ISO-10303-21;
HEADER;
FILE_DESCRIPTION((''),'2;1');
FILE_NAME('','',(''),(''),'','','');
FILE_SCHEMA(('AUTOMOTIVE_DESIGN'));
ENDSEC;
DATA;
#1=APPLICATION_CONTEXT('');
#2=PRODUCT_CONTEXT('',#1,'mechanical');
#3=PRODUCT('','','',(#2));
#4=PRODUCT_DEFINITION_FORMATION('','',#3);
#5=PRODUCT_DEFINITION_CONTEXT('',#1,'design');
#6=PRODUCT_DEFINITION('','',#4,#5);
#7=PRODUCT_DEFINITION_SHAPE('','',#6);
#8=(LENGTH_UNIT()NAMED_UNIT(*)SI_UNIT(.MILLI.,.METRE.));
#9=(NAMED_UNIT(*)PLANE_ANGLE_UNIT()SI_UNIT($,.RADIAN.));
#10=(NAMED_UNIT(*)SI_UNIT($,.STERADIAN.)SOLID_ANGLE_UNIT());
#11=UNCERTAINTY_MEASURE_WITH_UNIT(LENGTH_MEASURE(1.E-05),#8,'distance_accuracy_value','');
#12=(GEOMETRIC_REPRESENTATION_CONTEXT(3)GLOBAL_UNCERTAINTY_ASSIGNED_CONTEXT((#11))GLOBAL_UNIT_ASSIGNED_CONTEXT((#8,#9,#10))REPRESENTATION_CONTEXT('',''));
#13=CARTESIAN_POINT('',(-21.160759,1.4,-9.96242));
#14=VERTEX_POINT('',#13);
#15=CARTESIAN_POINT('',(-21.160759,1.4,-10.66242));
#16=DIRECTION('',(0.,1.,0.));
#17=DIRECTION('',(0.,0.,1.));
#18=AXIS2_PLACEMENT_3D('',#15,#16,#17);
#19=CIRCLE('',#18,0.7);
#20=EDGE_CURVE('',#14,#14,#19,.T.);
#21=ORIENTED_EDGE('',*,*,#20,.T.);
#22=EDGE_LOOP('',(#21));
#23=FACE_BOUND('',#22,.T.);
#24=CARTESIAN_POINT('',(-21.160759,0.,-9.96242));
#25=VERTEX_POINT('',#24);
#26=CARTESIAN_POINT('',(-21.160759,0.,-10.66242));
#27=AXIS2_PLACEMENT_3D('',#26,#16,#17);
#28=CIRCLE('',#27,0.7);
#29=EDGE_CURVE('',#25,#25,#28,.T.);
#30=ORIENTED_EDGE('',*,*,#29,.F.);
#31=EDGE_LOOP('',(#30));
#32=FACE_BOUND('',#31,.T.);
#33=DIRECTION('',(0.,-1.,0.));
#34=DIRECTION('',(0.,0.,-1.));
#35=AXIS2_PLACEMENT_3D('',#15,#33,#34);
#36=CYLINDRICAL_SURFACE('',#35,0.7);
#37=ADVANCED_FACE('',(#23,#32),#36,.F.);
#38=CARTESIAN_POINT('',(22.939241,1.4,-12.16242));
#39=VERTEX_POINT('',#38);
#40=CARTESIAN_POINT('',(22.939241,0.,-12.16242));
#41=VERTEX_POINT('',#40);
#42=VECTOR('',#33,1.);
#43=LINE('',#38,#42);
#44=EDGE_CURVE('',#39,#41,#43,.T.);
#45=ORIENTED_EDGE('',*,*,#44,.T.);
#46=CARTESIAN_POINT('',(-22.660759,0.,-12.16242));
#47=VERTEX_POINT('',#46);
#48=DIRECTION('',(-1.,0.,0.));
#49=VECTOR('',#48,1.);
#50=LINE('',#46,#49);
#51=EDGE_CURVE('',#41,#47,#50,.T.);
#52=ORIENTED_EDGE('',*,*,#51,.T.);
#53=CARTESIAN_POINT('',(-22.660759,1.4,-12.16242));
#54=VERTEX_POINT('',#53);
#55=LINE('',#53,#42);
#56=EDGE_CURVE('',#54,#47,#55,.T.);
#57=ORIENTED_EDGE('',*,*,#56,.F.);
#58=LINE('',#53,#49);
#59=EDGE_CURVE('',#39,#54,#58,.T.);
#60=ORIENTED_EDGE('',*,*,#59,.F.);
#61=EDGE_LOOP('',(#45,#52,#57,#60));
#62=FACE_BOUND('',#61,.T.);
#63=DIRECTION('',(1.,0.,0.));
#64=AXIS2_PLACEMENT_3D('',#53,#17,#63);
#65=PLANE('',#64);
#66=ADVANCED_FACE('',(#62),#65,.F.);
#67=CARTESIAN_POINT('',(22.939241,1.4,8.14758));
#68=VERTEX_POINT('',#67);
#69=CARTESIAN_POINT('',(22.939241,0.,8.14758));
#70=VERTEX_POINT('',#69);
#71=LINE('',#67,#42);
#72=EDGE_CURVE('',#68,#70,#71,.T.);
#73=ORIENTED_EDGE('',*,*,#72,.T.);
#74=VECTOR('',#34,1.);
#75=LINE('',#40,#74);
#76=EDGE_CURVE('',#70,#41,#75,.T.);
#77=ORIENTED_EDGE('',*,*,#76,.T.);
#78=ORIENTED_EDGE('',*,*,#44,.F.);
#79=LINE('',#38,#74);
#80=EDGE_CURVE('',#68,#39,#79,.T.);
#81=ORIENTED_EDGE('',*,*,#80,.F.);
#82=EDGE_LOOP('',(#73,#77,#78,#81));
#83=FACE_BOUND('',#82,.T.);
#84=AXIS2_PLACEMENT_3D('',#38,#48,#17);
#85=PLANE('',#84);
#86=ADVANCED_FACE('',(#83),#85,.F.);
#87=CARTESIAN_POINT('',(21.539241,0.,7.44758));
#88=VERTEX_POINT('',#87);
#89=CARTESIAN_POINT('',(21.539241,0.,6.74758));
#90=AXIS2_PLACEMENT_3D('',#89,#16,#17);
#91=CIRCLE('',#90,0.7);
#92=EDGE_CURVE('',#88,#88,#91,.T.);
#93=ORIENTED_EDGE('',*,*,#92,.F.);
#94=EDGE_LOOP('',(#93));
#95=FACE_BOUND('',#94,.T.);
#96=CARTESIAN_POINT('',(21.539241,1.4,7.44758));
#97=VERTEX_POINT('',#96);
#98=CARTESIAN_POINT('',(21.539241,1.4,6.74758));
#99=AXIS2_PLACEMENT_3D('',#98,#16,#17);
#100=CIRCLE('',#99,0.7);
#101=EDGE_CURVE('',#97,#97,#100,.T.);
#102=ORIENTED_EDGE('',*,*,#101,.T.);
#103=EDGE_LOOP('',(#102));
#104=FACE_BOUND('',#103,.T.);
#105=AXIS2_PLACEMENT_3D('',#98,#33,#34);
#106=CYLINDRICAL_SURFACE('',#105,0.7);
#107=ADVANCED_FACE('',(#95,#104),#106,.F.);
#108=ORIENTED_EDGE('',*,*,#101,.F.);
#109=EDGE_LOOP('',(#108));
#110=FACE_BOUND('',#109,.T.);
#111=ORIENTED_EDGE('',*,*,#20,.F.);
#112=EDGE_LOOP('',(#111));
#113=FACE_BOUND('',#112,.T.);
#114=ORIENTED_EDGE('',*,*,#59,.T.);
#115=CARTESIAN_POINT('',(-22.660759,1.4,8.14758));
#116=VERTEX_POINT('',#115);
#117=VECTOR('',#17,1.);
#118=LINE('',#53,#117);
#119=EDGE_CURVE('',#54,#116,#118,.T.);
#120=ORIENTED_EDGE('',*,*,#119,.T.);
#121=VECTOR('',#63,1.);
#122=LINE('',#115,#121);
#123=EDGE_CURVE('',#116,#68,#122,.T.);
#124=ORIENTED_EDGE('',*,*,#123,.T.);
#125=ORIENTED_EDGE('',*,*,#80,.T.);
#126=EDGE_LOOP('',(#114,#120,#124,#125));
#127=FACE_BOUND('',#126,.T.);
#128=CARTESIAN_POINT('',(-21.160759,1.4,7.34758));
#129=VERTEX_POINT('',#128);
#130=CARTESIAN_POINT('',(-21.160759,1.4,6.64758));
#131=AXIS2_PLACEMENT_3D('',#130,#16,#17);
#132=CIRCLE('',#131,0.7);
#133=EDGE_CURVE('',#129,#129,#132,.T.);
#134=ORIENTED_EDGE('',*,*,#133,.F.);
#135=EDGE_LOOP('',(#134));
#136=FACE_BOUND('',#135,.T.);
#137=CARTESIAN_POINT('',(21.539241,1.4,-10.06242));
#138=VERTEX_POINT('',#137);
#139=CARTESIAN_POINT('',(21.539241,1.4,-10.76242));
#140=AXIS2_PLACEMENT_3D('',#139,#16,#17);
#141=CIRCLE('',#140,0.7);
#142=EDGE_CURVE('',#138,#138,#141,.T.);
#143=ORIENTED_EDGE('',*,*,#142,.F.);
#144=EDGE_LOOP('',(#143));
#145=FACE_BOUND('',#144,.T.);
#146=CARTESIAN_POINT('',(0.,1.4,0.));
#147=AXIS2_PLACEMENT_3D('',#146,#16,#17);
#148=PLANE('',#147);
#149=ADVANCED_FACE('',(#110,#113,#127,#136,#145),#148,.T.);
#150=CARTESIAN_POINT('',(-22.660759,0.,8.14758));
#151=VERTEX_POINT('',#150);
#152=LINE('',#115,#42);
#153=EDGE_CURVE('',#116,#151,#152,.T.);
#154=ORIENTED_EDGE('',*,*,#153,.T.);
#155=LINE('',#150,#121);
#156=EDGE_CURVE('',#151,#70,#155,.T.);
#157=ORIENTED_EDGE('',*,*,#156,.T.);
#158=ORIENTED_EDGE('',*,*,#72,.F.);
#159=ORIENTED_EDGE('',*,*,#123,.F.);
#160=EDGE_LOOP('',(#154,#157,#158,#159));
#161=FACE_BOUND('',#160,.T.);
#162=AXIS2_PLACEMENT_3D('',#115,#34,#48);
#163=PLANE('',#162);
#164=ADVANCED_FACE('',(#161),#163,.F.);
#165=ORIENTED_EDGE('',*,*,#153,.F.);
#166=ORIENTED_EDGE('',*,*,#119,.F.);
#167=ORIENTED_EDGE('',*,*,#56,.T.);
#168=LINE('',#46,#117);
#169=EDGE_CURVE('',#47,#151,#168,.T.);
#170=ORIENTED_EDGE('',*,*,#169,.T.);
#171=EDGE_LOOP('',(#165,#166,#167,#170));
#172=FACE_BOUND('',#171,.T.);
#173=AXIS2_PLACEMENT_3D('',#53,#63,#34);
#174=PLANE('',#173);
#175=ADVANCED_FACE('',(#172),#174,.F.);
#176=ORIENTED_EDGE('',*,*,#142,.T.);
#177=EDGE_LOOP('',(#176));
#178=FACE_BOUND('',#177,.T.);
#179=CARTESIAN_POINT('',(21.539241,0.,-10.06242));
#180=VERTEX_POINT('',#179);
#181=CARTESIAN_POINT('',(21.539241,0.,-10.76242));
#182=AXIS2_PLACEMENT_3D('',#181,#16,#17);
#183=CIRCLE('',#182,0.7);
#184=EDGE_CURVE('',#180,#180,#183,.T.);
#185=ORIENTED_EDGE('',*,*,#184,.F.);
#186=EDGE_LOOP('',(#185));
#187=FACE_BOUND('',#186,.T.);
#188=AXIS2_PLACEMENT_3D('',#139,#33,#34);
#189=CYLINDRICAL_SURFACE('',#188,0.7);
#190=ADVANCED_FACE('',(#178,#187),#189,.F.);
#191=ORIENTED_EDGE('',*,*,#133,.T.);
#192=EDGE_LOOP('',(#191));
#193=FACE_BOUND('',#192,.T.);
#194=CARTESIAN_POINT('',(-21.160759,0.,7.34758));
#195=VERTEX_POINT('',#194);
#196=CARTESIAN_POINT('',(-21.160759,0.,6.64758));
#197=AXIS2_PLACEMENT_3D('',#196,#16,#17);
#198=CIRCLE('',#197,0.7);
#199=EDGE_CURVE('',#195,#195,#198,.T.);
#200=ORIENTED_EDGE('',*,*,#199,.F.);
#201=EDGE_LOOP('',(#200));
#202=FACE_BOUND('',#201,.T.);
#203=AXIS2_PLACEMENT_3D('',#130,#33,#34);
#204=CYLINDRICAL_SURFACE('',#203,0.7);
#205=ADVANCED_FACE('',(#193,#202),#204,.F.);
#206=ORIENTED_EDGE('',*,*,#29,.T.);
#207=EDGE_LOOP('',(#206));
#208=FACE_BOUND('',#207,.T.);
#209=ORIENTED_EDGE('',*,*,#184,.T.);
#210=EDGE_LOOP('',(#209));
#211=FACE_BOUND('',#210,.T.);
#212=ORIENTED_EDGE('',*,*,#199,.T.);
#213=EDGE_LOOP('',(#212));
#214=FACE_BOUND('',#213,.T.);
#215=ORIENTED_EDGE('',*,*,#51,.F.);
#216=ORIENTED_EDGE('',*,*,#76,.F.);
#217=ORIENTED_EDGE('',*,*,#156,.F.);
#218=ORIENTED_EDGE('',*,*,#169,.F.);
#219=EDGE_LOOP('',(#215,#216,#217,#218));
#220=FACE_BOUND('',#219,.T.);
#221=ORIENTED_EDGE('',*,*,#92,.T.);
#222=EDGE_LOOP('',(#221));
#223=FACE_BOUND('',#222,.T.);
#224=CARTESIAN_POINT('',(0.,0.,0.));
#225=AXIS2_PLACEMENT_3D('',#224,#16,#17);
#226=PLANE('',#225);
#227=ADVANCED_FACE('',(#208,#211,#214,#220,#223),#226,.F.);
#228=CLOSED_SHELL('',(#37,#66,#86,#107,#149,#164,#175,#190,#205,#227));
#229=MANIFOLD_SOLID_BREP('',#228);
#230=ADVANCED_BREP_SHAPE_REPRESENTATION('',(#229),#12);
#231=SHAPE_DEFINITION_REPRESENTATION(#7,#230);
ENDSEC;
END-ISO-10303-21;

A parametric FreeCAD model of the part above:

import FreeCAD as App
import Part
import Sketcher

V = App.Vector
Q = App.Units.Quantity

doc = App.newDocument("Part")
body = doc.addObject("PartDesign::Body", "Body")

sketch1 = body.newObject("Sketcher::SketchObject", "Sketch")
sketch1.AttachmentSupport = (doc.getObject("XZ_Plane"), [""])
sketch1.MapMode = "FlatFace"
sketch1.addGeometry([
    Part.LineSegment(V(-22.660759, -12.16242, 0), V(-22.660759, 8.14758, 0)),
    Part.LineSegment(V(-22.660759, 8.14758, 0), V(22.939241, 8.14758, 0)),
    Part.LineSegment(V(22.939241, 8.14758, 0), V(22.939241, -12.16242, 0)),
    Part.LineSegment(V(22.939241, -12.16242, 0), V(-22.660759, -12.16242, 0)),
    Part.Circle(V(-21.160759, 6.64758, 0), V(0, 0, 1), 0.7),
    Part.Circle(V(21.539241, 6.74758, 0), V(0, 0, 1), 0.7),
    Part.Circle(V(-21.160759, -10.66242, 0), V(0, 0, 1), 0.7),
    Part.Circle(V(21.539241, -10.76242, 0), V(0, 0, 1), 0.7),
], False)
sketch1.addConstraint([
    Sketcher.Constraint("Coincident", 0, 2, 1, 1),
    Sketcher.Constraint("Coincident", 1, 2, 2, 1),
    Sketcher.Constraint("Coincident", 2, 2, 3, 1),
    Sketcher.Constraint("Coincident", 3, 2, 0, 1),
    Sketcher.Constraint("Vertical", 0),
    Sketcher.Constraint("Horizontal", 1),
    Sketcher.Constraint("Vertical", 2),
    Sketcher.Constraint("Horizontal", 3),
    Sketcher.Constraint("Equal", 4, 5),
    Sketcher.Constraint("Equal", 5, 6),
    Sketcher.Constraint("Equal", 6, 7),
    Sketcher.Constraint("Vertical", 4, 3, 6, 3),
    Sketcher.Constraint("Vertical", 5, 3, 7, 3),
    Sketcher.Constraint("Diameter", 4, Q("1.4 mm")),
    Sketcher.Constraint("DistanceX", 1, 1, 1, 2, Q("45.6 mm")),
    Sketcher.Constraint("DistanceY", 0, 1, 0, 2, Q("20.31 mm")),
    Sketcher.Constraint("DistanceX", 4, 3, 5, 3, Q("42.7 mm")),
    Sketcher.Constraint("DistanceY", 4, 3, 5, 3, Q("0.1 mm")),
    Sketcher.Constraint("DistanceY", 7, 3, 6, 3, Q("0.1 mm")),
    Sketcher.Constraint("DistanceX", 0, 2, 4, 3, Q("1.5 mm")),
    Sketcher.Constraint("DistanceY", 4, 3, 0, 2, Q("1.5 mm")),
    Sketcher.Constraint("DistanceY", 2, 2, 7, 3, Q("1.4 mm")),
    Sketcher.Constraint("DistanceX", 4, 3, -1, 1, Q("21.160759 mm")),
    Sketcher.Constraint("DistanceY", -1, 1, 4, 3, Q("6.64758 mm")),
])
pad1 = body.newObject("PartDesign::Pad", "Pad")
pad1.Profile = sketch1
pad1.Length = 1.4
pad1.Reversed = True

doc.recompute()
